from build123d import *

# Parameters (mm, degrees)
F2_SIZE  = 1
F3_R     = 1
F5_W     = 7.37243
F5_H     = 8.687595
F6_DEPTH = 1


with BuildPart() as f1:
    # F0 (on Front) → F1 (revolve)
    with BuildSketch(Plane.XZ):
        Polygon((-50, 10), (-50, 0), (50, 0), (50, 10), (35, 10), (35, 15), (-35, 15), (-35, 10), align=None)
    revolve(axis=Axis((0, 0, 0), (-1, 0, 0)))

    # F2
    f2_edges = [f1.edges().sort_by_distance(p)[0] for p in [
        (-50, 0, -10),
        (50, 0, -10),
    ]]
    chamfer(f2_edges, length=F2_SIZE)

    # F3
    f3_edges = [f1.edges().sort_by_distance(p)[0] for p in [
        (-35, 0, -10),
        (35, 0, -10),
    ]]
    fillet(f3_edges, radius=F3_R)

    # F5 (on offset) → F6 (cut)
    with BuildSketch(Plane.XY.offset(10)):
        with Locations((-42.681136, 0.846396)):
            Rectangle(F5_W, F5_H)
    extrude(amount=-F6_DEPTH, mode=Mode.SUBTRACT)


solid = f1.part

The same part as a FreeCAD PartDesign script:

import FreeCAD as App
import Part
import Sketcher
from FreeCAD import Vector
Q = App.Units.Quantity


def edges_at(feature, points):
    """Names of the edges that pass closest to the given points."""
    edges = feature.Shape.Edges
    near = lambda p: min(range(len(edges)), key=lambda i: edges[i].distToShape(Part.Vertex(*p))[0])
    return sorted({f"Edge{near(p) + 1}" for p in points})

doc = App.newDocument("Part")
body = doc.addObject("PartDesign::Body", "Body")

sketch1 = body.newObject("Sketcher::SketchObject", "Sketch")
sketch1.AttachmentSupport = (doc.getObject("XZ_Plane"), [""])
sketch1.MapMode = "FlatFace"
sketch1.addGeometry([
    Part.LineSegment(Vector(-50, 10, 0), Vector(-50, 0, 0)),
    Part.LineSegment(Vector(-50, 0, 0), Vector(50, 0, 0)),
    Part.LineSegment(Vector(50, 0, 0), Vector(50, 10, 0)),
    Part.LineSegment(Vector(50, 10, 0), Vector(35, 10, 0)),
    Part.LineSegment(Vector(35, 10, 0), Vector(35, 15, 0)),
    Part.LineSegment(Vector(35, 15, 0), Vector(-35, 15, 0)),
    Part.LineSegment(Vector(-35, 15, 0), Vector(-35, 10, 0)),
    Part.LineSegment(Vector(-35, 10, 0), Vector(-50, 10, 0)),
], False)
sketch1.addConstraint([
    Sketcher.Constraint("Coincident", 0, 2, 1, 1),
    Sketcher.Constraint("Coincident", 1, 2, 2, 1),
    Sketcher.Constraint("Coincident", 2, 2, 3, 1),
    Sketcher.Constraint("Coincident", 3, 2, 4, 1),
    Sketcher.Constraint("Coincident", 4, 2, 5, 1),
    Sketcher.Constraint("Coincident", 5, 2, 6, 1),
    Sketcher.Constraint("Coincident", 6, 2, 7, 1),
    Sketcher.Constraint("Coincident", 7, 2, 0, 1),
    Sketcher.Constraint("Vertical", 0),
    Sketcher.Constraint("Horizontal", 1),
    Sketcher.Constraint("Vertical", 2),
    Sketcher.Constraint("Horizontal", 3),
    Sketcher.Constraint("Vertical", 4),
    Sketcher.Constraint("Horizontal", 5),
    Sketcher.Constraint("Vertical", 6),
    Sketcher.Constraint("Horizontal", 7),
    Sketcher.Constraint("Symmetric", 0, 2, 1, 2, -1, 1),
    Sketcher.Constraint("Symmetric", 3, 2, 6, 2, -2),
    Sketcher.Constraint("DistanceX", 1, 1, 1, 2, Q("100 mm")),
    Sketcher.Constraint("DistanceX", 3, 2, 3, 1, Q("15 mm")),
    Sketcher.Constraint("DistanceY", 0, 2, 0, 1, Q("10 mm")),
    Sketcher.Constraint("DistanceY", 4, 1, 4, 2, Q("5 mm")),
])
revolution = body.newObject("PartDesign::Revolution", "Revolution")
revolution.Profile = sketch1
revolution.ReferenceAxis = (sketch1, ["H_Axis"])
revolution.Angle = 360
doc.recompute()

chamfer = body.newObject("PartDesign::Chamfer", "Chamfer")
chamfer.Base = (revolution, edges_at(revolution, [(-50, 0, -10), (50, 0, -10)]))
chamfer.Size = 1
doc.recompute()

fillet = body.newObject("PartDesign::Fillet", "Fillet")
fillet.Base = (chamfer, edges_at(chamfer, [(-35, 0, -10), (35, 0, -10)]))
fillet.Radius = 1

sketch2 = body.newObject("Sketcher::SketchObject", "Sketch001")
sketch2.AttachmentSupport = (doc.getObject("XY_Plane"), [""])
sketch2.MapMode = "FlatFace"
sketch2.AttachmentOffset = App.Placement(Vector(0, 0, 10), App.Rotation())
sketch2.addGeometry([
    Part.LineSegment(Vector(-46, 5, 0), Vector(-46, -3, 0)),
    Part.LineSegment(Vector(-46, -3, 0), Vector(-39, -3, 0)),
    Part.LineSegment(Vector(-39, -3, 0), Vector(-39, 5, 0)),
    Part.LineSegment(Vector(-39, 5, 0), Vector(-46, 5, 0)),
], False)
sketch2.addConstraint([
    Sketcher.Constraint("Coincident", 0, 2, 1, 1),
    Sketcher.Constraint("Coincident", 1, 2, 2, 1),
    Sketcher.Constraint("Coincident", 2, 2, 3, 1),
    Sketcher.Constraint("Coincident", 3, 2, 0, 1),
    Sketcher.Constraint("Vertical", 0),
    Sketcher.Constraint("Horizontal", 1),
    Sketcher.Constraint("Vertical", 2),
    Sketcher.Constraint("Horizontal", 3),
    Sketcher.Constraint("DistanceX", 1, 1, 1, 2, Q("7.37243 mm")),
    Sketcher.Constraint("DistanceY", 0, 2, -1, 1, Q("3.497402 mm")),
    Sketcher.Constraint("DistanceY", 0, 2, 0, 1, Q("8.687595 mm")),
    Sketcher.Constraint("DistanceX", 0, 2, -1, 1, Q("46.367351 mm")),
])
pocket1 = body.newObject("PartDesign::Pocket", "Pocket")
pocket1.Profile = sketch2
pocket1.Length = 1

doc.recompute()
